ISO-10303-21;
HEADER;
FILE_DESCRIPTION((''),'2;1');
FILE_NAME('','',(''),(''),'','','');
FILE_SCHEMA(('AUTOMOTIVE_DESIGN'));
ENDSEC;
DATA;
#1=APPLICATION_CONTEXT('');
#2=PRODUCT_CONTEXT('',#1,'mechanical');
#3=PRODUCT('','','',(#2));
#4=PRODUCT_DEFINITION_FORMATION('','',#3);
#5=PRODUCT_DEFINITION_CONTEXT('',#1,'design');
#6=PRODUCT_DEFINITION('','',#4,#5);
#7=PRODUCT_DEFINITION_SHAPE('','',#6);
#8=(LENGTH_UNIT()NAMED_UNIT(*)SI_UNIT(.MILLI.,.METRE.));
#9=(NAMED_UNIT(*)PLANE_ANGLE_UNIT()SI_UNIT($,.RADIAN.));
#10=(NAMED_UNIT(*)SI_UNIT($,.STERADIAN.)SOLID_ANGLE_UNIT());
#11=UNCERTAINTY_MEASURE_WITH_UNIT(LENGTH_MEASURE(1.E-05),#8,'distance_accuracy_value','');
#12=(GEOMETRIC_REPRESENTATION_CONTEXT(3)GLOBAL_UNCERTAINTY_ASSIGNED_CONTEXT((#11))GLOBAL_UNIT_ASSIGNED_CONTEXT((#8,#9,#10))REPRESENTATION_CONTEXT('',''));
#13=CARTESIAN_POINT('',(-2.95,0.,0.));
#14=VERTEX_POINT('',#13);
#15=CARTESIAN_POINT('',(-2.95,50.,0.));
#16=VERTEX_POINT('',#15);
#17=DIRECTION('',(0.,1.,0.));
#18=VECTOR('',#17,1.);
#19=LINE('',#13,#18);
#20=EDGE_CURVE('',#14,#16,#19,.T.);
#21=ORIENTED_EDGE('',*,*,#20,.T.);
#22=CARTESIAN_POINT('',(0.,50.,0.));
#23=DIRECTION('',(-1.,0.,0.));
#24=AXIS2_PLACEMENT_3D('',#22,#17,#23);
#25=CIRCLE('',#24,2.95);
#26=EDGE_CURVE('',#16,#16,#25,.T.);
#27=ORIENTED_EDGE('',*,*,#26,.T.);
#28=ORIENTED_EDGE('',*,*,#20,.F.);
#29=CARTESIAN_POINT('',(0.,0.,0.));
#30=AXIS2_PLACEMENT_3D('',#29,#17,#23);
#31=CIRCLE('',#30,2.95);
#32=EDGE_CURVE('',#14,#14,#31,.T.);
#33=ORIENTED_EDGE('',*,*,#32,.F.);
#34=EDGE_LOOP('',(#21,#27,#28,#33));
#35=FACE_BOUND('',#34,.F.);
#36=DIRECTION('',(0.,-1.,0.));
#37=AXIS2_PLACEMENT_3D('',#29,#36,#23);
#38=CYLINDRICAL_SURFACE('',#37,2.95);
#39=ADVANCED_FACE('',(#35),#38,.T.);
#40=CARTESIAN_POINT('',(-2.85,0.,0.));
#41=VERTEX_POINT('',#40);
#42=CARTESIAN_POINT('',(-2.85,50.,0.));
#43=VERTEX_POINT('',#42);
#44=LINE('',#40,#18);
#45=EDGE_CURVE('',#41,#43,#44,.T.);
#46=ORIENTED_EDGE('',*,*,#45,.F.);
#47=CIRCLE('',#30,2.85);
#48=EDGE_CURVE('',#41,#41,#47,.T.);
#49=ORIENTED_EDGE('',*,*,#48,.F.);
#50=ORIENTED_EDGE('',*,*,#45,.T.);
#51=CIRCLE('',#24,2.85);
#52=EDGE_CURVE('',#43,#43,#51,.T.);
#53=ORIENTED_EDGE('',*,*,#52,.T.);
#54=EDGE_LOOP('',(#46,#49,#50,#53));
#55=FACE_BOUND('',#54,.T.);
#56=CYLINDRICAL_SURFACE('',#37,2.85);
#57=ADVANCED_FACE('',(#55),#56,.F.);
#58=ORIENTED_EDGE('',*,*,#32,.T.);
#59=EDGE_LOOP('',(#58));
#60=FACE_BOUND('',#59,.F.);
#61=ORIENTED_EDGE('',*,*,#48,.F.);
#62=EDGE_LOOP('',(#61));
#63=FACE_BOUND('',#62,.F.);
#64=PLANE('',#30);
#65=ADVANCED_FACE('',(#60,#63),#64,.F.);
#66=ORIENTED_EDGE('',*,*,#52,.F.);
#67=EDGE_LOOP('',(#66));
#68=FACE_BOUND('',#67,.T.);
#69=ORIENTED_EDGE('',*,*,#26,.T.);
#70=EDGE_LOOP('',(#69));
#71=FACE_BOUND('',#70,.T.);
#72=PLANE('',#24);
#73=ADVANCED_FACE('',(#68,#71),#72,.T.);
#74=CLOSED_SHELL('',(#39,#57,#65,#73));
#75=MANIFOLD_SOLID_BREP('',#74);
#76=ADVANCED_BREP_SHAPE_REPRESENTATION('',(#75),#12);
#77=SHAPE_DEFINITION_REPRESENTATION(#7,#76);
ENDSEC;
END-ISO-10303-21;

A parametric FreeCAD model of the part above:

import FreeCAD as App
import Part
import Sketcher
from FreeCAD import Vector
Q = App.Units.Quantity

doc = App.newDocument("Part")
body = doc.addObject("PartDesign::Body", "Body")

# Sketch on XZ plane
sketch1 = body.newObject("Sketcher::SketchObject", "Sketch")
sketch1.AttachmentSupport = (doc.getObject("XZ_Plane"), [""])
sketch1.MapMode = "FlatFace"
sketch1.addGeometry(Part.Circle(Vector(0, 0, 0), Vector(0, 0, 1), 2.95), False)
sketch1.addGeometry(Part.Circle(Vector(0, 0, 0), Vector(0, 0, 1), 2.85), False)
sketch1.addConstraint(Sketcher.Constraint("Coincident", 0, 3, -1, 1))
sketch1.addConstraint(Sketcher.Constraint("Coincident", 1, 3, -1, 1))
sketch1.addConstraint(Sketcher.Constraint("Diameter", 0, Q("5.9 mm")))
sketch1.addConstraint(Sketcher.Constraint("Diameter", 1, Q("5.7 mm")))
pad1 = body.newObject("PartDesign::Pad", "Pad")
pad1.Profile = sketch1
pad1.Length = 50
pad1.Reversed = True

doc.recompute()
